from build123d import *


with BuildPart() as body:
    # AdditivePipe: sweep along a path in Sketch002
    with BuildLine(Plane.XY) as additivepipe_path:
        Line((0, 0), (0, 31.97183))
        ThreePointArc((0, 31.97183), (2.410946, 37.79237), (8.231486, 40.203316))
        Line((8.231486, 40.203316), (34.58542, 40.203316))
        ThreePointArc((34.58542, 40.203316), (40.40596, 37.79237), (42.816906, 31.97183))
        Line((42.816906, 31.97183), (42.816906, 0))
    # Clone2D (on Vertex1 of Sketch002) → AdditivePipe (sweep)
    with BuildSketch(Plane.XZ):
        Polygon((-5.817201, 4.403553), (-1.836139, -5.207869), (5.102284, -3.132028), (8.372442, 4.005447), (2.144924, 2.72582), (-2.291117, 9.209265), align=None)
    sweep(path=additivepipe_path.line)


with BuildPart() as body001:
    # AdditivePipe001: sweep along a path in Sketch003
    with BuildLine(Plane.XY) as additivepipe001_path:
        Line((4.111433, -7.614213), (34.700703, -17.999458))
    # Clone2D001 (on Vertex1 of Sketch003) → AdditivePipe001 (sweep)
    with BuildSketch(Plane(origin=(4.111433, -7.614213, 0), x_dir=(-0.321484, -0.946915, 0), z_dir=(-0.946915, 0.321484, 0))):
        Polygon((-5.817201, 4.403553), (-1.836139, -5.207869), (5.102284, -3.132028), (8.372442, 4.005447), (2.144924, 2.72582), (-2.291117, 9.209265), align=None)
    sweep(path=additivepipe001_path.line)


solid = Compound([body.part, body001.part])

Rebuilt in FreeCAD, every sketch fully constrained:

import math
import FreeCAD as App
import Part
import Sketcher
from FreeCAD import Vector


def add_polygon(sketch, points):
    """Adds a closed chain of lines whose ends are joined by coincident constraints."""
    first, n = sketch.GeometryCount, len(points)
    for a, b in zip(points, points[1:] + points[:1]):
        sketch.addGeometry(Part.LineSegment(App.Vector(*a, 0), App.Vector(*b, 0)), False)
    for i in range(n):
        sketch.addConstraint(Sketcher.Constraint("Coincident", first + i, 2, first + (i + 1) % n, 1))

doc = App.newDocument("Part")
body = doc.addObject("PartDesign::Body", "Body")

sketch1 = body.newObject("Sketcher::SketchObject", "Sketch")
sketch1.AttachmentSupport = (doc.getObject("XZ_Plane"), [""])
sketch1.MapMode = "FlatFace"
add_polygon(sketch1, [(-5.817201, 4.403553), (-1.836139, -5.207869), (5.102284, -3.132028), (8.372442, 4.005447), (2.144924, 2.72582), (-2.291117, 9.209265)])
sketch1.addConstraint(Sketcher.Constraint("DistanceX", 5, 2, -1, 1, 5.817201))
sketch1.addConstraint(Sketcher.Constraint("DistanceX", 4, 2, 1, 2, 7.393401))
sketch1.addConstraint(Sketcher.Constraint("Distance", 5, 5.960548))
sketch1.addConstraint(Sketcher.Constraint("DistanceX", 0, 2, -1, 1, 1.836139))
sketch1.addConstraint(Sketcher.Constraint("DistanceY", 0, 2, -1, 1, 5.207869))
sketch1.addConstraint(Sketcher.Constraint("DistanceY", 1, 2, -1, 1, 3.132028))
sketch1.addConstraint(Sketcher.Constraint("DistanceY", -1, 1, 3, 2, 2.72582))
sketch1.addConstraint(Sketcher.Constraint("DistanceX", 0, 2, 2, 2, 10.208581))
sketch1.addConstraint(Sketcher.Constraint("DistanceX", 3, 2, 1, 2, 2.95736))
sketch1.addConstraint(Sketcher.Constraint("DistanceX", 4, 2, 2, 2, 10.663559))
sketch1.addConstraint(Sketcher.Constraint("DistanceY", 0, 2, 5, 2, 9.611422))
sketch1.addConstraint(Sketcher.Constraint("Distance", 2, 7.850954))

sketch2 = body.newObject("Sketcher::SketchObject", "Sketch001")
sketch2.AttachmentSupport = (doc.getObject("XY_Plane"), [""])
sketch2.MapMode = "FlatFace"
sketch2.addGeometry(Part.LineSegment(Vector(0, 0, 0), Vector(0, 31.97183, 0)), False)
sketch2.addGeometry(Part.ArcOfCircle(Part.Circle(Vector(8.231485, 31.971831, 0), Vector(0, 0, 1), 8.231485), math.radians(89.99999), math.radians(180.00001)), False)
sketch2.addGeometry(Part.LineSegment(Vector(8.231486, 40.203316, 0), Vector(34.58542, 40.203316, 0)), False)
sketch2.addGeometry(Part.ArcOfCircle(Part.Circle(Vector(34.585421, 31.971831, 0), Vector(0, 0, 1), 8.231485), math.radians(-0.00001), math.radians(90.00001)), False)
sketch2.addGeometry(Part.LineSegment(Vector(42.816906, 31.97183, 0), Vector(42.816906, 0, 0)), False)
sketch2.addConstraint(Sketcher.Constraint("Tangent", 0, 2, 1, 2))
sketch2.addConstraint(Sketcher.Constraint("Tangent", 1, 1, 2, 1))
sketch2.addConstraint(Sketcher.Constraint("Tangent", 2, 2, 3, 2))
sketch2.addConstraint(Sketcher.Constraint("Tangent", 3, 1, 4, 1))
sketch2.addConstraint(Sketcher.Constraint("Vertical", 0))
sketch2.addConstraint(Sketcher.Constraint("Horizontal", 2))
sketch2.addConstraint(Sketcher.Constraint("Vertical", 4))
sketch2.addConstraint(Sketcher.Constraint("Coincident", 0, 1, -1, 1))
sketch2.addConstraint(Sketcher.Constraint("Equal", 1, 3))
sketch2.addConstraint(Sketcher.Constraint("PointOnObject", 4, 2, -1))
sketch2.addConstraint(Sketcher.Constraint("Radius", 1, 8.231485))
sketch2.addConstraint(Sketcher.Constraint("DistanceY", 0, 1, 0, 2, 31.97183))
sketch2.addConstraint(Sketcher.Constraint("DistanceX", 2, 1, 2, 2, 26.353934))
doc.recompute()

additivepipe = body.newObject("PartDesign::AdditivePipe", "AdditivePipe")
additivepipe.Profile = sketch1
additivepipe.Spine = (sketch2, ["Edge1", "Edge2", "Edge3", "Edge4", "Edge5"])
body2 = doc.addObject("PartDesign::Body", "Body001")

sketch3 = body2.newObject("Sketcher::SketchObject", "Sketch002")
sketch3.Placement = App.Placement(Vector(4.111433, -7.614213, 0), App.Rotation(Vector(-0.321484003, -0.94691501, 0), Vector(0, 0, 1), Vector(-0.94691501, 0.321484003, 0), "ZXY"))
add_polygon(sketch3, [(-5.817201, 4.403553), (-1.836139, -5.207869), (5.102284, -3.132028), (8.372442, 4.005447), (2.144924, 2.72582), (-2.291117, 9.209265)])
sketch3.addConstraint(Sketcher.Constraint("DistanceX", 5, 2, -1, 1, 5.817201))
sketch3.addConstraint(Sketcher.Constraint("DistanceX", 4, 2, 1, 2, 7.393401))
sketch3.addConstraint(Sketcher.Constraint("Distance", 5, 5.960548))
sketch3.addConstraint(Sketcher.Constraint("DistanceX", 0, 2, -1, 1, 1.836139))
sketch3.addConstraint(Sketcher.Constraint("DistanceY", 0, 2, -1, 1, 5.207869))
sketch3.addConstraint(Sketcher.Constraint("DistanceY", 1, 2, -1, 1, 3.132028))
sketch3.addConstraint(Sketcher.Constraint("DistanceY", -1, 1, 3, 2, 2.72582))
sketch3.addConstraint(Sketcher.Constraint("DistanceX", 1, 2, 2, 2, 3.270158))
sketch3.addConstraint(Sketcher.Constraint("DistanceX", 0, 2, 2, 2, 10.208581))
sketch3.addConstraint(Sketcher.Constraint("DistanceX", 3, 2, 2, 2, 6.227518))
sketch3.addConstraint(Sketcher.Constraint("DistanceY", 2, 2, 4, 2, 5.203818))
sketch3.addConstraint(Sketcher.Constraint("DistanceY", 1, 2, 5, 2, 7.535581))

sketch4 = body2.newObject("Sketcher::SketchObject", "Sketch003")
sketch4.Placement = App.Placement(Vector(-1.892977, -5.575679, 0), App.Rotation(Vector(0.946915175, -0.321483516, 0), Vector(0, 0, 1), Vector(-0.321483516, -0.946915175, 0), "ZXY"))
sketch4.addGeometry(Part.LineSegment(Vector(6.341022, 0, 0), Vector(38.645151, 0, 0)), False)
sketch4.addConstraint(Sketcher.Constraint("Horizontal", 0))
sketch4.addConstraint(Sketcher.Constraint("PointOnObject", 0, 1, -1))
sketch4.addConstraint(Sketcher.Constraint("DistanceX", 0, 1, 0, 2, 32.304129))
sketch4.addConstraint(Sketcher.Constraint("DistanceX", -1, 1, 0, 2, 38.645151))
doc.recompute()

additivepipe2 = body2.newObject("PartDesign::AdditivePipe", "AdditivePipe001")
additivepipe2.Profile = sketch3
additivepipe2.Spine = (sketch4, ["Edge1"])

doc.recompute()
